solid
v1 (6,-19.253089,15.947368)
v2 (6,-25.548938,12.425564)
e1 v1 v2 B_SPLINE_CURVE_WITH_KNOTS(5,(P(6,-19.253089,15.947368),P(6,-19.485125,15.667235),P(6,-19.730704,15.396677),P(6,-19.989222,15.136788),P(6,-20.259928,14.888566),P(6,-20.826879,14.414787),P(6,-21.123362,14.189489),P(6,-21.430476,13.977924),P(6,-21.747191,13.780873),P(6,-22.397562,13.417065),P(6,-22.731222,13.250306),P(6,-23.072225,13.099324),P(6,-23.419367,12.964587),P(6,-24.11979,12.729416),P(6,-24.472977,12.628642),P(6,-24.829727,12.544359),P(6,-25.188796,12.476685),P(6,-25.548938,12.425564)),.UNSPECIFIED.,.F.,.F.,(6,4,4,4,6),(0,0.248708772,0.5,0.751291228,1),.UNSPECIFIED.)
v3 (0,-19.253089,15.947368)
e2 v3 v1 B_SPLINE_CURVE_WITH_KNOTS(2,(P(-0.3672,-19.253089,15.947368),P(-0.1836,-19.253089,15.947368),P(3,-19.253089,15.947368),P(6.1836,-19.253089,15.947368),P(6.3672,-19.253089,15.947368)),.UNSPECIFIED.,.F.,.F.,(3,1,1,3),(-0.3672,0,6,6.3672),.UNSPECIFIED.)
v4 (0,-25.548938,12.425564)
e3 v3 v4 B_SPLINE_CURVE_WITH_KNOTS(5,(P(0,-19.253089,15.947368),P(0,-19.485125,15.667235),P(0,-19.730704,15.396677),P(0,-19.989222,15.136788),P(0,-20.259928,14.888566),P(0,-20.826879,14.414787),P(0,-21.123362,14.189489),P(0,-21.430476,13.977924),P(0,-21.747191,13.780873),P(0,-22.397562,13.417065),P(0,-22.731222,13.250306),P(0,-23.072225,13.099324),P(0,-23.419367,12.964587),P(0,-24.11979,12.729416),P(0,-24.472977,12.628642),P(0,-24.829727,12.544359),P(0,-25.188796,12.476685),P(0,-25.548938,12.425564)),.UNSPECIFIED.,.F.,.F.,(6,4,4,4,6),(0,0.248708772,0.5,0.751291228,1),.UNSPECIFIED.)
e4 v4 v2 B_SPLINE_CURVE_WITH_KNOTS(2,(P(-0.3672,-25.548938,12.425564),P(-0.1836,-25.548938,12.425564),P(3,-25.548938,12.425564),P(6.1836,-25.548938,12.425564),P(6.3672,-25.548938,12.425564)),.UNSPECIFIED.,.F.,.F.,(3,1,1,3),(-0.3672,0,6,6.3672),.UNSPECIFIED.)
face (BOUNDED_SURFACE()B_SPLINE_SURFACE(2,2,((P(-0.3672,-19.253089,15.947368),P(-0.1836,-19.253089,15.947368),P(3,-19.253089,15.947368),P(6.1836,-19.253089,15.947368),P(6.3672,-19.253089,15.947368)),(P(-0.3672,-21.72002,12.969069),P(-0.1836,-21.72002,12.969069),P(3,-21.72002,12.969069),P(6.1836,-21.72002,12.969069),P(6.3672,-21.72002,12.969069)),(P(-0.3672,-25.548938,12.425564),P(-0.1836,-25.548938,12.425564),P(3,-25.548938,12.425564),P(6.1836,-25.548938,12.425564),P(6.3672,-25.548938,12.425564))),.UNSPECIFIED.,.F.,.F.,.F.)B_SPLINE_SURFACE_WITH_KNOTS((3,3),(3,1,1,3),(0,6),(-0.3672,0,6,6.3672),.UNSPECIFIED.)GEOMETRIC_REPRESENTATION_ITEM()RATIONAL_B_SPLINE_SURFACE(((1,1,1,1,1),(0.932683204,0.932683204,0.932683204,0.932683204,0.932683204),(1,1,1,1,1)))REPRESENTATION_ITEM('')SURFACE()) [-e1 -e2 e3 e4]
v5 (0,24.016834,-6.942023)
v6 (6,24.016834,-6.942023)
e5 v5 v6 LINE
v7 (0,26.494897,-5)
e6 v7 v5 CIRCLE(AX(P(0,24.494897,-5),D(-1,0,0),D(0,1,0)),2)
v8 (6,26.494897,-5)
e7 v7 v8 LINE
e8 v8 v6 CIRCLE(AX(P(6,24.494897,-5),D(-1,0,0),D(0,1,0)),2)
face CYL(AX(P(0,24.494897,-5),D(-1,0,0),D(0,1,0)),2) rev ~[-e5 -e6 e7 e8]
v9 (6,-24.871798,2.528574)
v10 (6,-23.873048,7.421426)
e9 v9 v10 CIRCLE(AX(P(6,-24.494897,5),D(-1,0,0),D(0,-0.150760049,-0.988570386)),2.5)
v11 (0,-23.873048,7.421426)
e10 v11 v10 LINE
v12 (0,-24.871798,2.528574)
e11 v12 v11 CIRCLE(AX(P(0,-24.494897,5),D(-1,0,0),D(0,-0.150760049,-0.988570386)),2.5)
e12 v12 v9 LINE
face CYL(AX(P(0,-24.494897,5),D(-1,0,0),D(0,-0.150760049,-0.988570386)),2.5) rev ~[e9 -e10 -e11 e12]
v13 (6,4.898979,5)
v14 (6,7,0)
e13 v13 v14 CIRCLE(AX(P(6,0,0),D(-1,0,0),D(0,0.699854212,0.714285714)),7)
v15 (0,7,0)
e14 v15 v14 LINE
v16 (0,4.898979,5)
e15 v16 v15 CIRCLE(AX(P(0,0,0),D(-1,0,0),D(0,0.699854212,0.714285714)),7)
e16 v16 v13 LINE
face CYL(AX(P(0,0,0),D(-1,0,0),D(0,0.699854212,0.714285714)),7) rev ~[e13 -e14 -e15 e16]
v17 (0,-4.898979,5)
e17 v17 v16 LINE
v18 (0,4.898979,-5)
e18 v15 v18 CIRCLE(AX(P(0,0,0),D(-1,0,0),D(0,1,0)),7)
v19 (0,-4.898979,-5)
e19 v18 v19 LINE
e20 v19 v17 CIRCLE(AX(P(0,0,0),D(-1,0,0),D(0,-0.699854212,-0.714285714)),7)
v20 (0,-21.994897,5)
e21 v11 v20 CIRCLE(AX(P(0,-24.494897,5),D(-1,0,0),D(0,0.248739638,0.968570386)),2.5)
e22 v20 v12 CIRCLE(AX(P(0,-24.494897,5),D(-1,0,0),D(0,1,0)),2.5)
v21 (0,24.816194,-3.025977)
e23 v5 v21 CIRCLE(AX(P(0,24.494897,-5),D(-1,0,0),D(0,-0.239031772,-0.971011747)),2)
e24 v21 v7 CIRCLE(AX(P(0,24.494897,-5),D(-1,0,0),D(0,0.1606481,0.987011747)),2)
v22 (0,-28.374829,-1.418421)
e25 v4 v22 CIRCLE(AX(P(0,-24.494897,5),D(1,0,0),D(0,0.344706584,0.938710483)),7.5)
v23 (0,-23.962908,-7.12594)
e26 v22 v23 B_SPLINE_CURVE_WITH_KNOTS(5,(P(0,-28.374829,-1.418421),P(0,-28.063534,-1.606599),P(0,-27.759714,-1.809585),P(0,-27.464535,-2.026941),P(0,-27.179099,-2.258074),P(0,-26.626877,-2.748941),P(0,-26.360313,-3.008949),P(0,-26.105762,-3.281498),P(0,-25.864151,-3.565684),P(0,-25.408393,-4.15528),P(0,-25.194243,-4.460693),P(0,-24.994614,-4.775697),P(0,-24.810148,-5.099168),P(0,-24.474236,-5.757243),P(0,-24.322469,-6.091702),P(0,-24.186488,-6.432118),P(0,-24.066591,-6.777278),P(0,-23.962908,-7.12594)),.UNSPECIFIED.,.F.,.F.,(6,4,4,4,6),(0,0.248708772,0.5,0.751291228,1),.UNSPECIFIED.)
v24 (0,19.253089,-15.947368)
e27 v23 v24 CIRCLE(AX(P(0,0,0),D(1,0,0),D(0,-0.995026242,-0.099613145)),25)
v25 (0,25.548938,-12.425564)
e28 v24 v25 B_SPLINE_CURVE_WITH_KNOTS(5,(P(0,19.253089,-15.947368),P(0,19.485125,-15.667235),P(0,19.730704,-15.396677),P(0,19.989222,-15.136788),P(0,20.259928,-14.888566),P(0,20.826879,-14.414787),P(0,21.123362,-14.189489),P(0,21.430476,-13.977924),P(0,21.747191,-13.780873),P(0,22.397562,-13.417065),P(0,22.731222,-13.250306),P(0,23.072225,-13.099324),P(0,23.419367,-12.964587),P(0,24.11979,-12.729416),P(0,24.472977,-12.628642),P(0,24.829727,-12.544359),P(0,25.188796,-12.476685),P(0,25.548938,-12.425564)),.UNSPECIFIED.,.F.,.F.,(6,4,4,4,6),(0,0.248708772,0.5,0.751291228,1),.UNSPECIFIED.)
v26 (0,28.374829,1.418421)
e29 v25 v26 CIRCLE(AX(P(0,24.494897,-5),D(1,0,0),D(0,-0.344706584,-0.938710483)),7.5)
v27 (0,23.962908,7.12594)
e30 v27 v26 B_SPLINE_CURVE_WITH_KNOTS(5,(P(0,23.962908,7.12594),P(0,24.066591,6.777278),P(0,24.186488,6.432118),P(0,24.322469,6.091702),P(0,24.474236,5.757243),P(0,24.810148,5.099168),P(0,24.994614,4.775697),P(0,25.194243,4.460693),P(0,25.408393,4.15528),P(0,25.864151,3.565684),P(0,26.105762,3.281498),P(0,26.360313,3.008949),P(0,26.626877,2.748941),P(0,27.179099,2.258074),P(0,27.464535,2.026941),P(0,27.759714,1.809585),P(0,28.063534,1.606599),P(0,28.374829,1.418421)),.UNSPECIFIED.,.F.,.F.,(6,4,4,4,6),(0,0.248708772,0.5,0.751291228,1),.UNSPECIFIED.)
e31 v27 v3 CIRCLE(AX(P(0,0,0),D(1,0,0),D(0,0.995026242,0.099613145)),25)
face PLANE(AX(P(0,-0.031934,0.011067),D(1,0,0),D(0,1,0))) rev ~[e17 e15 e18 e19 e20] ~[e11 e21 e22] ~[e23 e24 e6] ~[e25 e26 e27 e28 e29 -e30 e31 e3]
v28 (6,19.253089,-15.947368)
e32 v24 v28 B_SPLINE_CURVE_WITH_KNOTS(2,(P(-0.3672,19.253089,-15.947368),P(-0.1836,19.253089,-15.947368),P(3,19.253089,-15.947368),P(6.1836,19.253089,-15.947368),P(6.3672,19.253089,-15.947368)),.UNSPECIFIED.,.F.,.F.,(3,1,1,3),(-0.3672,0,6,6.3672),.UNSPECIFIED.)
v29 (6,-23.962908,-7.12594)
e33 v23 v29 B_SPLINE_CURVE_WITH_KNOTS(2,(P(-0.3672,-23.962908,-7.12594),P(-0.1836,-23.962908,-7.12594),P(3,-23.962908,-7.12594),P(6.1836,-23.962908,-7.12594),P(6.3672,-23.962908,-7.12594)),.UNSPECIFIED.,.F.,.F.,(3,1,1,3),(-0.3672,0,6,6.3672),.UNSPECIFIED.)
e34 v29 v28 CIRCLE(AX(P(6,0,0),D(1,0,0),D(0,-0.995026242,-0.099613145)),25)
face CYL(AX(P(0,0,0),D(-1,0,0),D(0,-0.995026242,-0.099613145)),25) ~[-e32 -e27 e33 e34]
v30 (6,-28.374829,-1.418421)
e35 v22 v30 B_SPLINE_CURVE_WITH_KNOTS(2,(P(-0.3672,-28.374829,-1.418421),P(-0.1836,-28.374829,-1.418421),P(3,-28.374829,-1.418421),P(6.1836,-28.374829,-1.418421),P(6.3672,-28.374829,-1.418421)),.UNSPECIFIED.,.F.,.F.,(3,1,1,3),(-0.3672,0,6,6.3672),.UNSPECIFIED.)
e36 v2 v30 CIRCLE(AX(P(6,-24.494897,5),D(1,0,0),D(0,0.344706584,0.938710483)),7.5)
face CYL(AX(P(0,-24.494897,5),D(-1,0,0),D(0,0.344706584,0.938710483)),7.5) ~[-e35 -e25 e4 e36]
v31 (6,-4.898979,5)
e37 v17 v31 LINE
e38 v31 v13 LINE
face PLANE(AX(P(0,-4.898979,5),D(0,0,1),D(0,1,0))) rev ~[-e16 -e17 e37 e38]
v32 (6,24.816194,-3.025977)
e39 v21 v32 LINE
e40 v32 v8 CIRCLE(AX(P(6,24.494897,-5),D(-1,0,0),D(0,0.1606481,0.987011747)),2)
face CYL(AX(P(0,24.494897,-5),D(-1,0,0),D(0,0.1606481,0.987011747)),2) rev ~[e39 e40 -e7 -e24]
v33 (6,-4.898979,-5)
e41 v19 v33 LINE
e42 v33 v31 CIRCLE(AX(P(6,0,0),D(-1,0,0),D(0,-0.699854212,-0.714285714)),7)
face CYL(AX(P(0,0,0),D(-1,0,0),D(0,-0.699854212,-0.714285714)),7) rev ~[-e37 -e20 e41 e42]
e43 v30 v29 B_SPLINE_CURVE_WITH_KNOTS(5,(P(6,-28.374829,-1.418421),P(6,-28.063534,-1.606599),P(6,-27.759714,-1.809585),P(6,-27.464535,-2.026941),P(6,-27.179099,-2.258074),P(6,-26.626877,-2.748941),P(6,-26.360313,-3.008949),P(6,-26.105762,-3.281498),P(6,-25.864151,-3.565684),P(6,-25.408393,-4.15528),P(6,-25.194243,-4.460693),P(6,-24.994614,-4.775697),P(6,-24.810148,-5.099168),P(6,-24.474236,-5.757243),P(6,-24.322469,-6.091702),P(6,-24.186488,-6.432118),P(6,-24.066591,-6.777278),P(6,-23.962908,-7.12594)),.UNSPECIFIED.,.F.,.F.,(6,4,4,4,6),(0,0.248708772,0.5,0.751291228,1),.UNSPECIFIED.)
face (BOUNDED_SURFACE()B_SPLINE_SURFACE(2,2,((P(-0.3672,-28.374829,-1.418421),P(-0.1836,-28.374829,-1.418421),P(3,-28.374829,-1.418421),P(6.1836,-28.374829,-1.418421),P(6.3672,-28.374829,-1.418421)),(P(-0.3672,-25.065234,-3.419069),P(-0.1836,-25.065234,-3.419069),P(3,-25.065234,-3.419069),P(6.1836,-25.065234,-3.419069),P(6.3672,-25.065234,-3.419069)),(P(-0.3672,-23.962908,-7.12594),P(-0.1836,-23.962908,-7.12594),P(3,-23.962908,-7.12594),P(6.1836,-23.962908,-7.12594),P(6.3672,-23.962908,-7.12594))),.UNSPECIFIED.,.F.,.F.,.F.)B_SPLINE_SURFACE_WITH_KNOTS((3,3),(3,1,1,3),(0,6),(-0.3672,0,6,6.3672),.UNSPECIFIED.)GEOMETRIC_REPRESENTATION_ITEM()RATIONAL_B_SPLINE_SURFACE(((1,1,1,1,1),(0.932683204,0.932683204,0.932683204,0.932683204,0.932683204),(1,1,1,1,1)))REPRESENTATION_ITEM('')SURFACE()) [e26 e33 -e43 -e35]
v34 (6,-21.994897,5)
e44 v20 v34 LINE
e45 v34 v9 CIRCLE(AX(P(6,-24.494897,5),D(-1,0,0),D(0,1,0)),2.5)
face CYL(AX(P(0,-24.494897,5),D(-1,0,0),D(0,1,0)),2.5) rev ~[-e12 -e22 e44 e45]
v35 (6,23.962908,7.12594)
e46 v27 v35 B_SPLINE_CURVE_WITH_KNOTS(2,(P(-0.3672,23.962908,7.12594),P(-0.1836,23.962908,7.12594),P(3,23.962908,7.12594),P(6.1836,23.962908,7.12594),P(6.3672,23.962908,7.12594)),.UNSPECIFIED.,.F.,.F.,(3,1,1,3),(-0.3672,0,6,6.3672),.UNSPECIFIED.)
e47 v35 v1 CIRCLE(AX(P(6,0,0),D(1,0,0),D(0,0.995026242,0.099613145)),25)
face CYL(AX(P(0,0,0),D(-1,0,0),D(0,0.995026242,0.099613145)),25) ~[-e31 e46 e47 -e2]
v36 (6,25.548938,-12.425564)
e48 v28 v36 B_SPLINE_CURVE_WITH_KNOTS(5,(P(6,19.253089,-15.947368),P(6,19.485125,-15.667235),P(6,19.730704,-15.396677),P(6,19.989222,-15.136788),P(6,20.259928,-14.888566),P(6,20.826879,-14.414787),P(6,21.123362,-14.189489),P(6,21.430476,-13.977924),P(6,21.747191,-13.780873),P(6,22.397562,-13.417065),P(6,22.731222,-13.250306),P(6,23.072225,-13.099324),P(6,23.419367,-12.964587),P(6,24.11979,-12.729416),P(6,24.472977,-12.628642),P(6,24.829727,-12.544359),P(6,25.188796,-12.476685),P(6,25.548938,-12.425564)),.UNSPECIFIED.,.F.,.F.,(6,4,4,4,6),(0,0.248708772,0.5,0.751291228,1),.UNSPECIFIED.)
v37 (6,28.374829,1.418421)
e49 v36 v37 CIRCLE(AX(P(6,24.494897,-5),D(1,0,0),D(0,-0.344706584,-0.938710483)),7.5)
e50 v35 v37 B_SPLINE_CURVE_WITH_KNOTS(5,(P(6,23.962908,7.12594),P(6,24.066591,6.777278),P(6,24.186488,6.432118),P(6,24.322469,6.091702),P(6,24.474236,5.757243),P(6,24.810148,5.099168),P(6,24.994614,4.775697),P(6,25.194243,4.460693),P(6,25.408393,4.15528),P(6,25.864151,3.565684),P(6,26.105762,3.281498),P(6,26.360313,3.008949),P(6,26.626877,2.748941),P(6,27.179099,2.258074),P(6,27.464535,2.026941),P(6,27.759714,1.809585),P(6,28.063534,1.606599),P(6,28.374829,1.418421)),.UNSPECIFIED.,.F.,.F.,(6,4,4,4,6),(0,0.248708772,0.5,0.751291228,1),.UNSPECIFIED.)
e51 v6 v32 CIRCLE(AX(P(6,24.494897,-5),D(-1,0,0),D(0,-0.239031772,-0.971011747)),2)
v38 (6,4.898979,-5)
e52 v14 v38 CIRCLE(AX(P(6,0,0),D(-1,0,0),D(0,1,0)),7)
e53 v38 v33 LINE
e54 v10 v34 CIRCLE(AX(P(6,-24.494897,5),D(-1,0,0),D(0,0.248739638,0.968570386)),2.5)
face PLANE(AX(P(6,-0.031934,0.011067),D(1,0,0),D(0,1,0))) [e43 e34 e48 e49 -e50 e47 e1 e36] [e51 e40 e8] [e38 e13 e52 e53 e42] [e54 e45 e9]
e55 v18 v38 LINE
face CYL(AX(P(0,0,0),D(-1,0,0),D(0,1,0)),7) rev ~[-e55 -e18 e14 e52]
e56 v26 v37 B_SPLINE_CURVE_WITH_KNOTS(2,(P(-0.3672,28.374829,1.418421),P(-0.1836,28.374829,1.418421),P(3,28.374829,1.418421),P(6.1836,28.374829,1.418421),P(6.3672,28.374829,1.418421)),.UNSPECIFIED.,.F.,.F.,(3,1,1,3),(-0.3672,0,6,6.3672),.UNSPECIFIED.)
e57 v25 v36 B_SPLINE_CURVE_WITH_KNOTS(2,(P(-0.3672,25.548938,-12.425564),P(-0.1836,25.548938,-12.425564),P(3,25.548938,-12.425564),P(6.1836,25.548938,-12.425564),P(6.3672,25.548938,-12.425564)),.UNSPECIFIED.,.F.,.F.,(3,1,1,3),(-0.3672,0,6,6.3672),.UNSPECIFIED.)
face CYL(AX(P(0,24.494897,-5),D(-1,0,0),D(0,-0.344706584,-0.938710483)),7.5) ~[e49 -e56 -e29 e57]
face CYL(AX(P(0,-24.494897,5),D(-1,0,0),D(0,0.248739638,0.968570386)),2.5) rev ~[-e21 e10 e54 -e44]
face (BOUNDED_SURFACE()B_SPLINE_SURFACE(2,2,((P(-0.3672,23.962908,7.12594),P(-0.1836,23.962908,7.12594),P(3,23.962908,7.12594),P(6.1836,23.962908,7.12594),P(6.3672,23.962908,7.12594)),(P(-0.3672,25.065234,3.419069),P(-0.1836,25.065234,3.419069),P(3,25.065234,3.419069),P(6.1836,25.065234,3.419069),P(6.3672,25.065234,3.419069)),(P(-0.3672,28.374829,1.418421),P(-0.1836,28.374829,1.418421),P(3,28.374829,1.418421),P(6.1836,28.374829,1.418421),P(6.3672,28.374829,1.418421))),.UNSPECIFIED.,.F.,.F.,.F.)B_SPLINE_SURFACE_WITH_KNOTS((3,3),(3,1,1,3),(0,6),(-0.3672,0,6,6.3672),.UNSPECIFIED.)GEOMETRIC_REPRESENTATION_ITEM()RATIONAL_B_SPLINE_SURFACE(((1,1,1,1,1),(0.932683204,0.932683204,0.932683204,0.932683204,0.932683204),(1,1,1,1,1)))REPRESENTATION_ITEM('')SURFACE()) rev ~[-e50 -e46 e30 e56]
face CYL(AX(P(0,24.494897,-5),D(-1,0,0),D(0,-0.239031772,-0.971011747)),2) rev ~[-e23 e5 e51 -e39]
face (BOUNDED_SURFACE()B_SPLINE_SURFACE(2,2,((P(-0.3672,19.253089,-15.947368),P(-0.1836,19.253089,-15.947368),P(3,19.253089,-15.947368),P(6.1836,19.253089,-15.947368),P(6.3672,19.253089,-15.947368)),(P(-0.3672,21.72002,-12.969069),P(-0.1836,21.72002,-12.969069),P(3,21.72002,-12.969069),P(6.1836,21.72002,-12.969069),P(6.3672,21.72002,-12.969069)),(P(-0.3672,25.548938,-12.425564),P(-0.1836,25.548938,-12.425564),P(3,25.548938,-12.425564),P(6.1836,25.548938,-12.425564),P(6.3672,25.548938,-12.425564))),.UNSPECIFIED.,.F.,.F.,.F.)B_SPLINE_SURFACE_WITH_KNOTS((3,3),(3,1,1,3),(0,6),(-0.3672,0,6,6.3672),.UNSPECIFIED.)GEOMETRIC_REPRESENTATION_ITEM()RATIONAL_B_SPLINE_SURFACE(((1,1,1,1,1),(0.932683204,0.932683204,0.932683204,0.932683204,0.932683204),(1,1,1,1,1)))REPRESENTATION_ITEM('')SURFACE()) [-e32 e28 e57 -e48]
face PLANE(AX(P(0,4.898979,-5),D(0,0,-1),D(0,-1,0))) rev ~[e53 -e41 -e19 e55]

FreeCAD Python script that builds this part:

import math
import FreeCAD as App
import Part
import Sketcher

V = App.Vector


def edges_at(feature, points):
    """Names of the edges that pass closest to the given points."""
    edges = feature.Shape.Edges
    near = lambda p: min(range(len(edges)), key=lambda i: edges[i].distToShape(Part.Vertex(*p))[0])
    return sorted({f"Edge{near(p) + 1}" for p in points})

doc = App.newDocument("Part")
params = doc.addObject("Spreadsheet::Sheet", "Params")
for row, (alias, value) in enumerate([
    ("sketch1_radius", "25 mm"),
    ("sketch1_radius2", "7 mm"),
    ("sketch1_radius3", "2 mm"),
    ("sketch1_radius4", "7.5 mm"),
    ("sketch1_radius5", "2.5 mm"),
    ("pad1_length", "6 mm"),
    ("fillet_radius", "10 mm"),
], start=1):
    params.set(f"A{row}", alias)
    params.set(f"B{row}", "=" + value)
    params.setAlias(f"B{row}", alias)

body = doc.addObject("PartDesign::Body", "Body")

# Sketch on YZ plane
sketch1 = body.newObject("Sketcher::SketchObject", "Sketch")
sketch1.AttachmentSupport = (doc.getObject("YZ_Plane"), [""])
sketch1.MapMode = "FlatFace"
sketch1.addGeometry([
    Part.ArcOfCircle(Part.Circle(V(0, 0, 0), V(0, 0, 1), 25), math.radians(6), math.radians(151)),  # 0
    Part.ArcOfCircle(Part.Circle(V(-24.5, 5, 0), V(0, 0, 1), 7.5), math.radians(70), math.radians(267)),  # 1
    Part.ArcOfCircle(Part.Circle(V(0, 0, 0), V(0, 0, 1), 25), math.radians(-174), math.radians(-29)),  # 2
    Part.ArcOfCircle(Part.Circle(V(24.5, -5, 0), V(0, 0, 1), 7.5), math.radians(-110), math.radians(87)),  # 3
    Part.ArcOfCircle(Part.Circle(V(-24.5, 5, 0), V(0, 0, 1), 2.5), math.radians(0), math.radians(76)),  # 4
    Part.ArcOfCircle(Part.Circle(V(-24.5, 5, 0), V(0, 0, 1), 2.5), math.radians(-99), math.radians(0)),  # 5
    Part.ArcOfCircle(Part.Circle(V(-24.5, 5, 0), V(0, 0, 1), 2.5), math.radians(76), math.radians(261)),  # 6
    Part.ArcOfCircle(Part.Circle(V(0, 0, 0), V(0, 0, 1), 7), math.radians(0), math.radians(46)),  # 7
    Part.ArcOfCircle(Part.Circle(V(0, 0, 0), V(0, 0, 1), 7), math.radians(-46), math.radians(0)),  # 8
    Part.LineSegment(V(4.9, -5, 0), V(-4.9, -5, 0)),  # 9
    Part.ArcOfCircle(Part.Circle(V(0, 0, 0), V(0, 0, 1), 7), math.radians(134), math.radians(226)),  # 10
    Part.LineSegment(V(-4.9, 5, 0), V(4.9, 5, 0)),  # 11
    Part.ArcOfCircle(Part.Circle(V(24.5, -5, 0), V(0, 0, 1), 2), math.radians(81), math.radians(256)),  # 12
    Part.ArcOfCircle(Part.Circle(V(24.5, -5, 0), V(0, 0, 1), 2), math.radians(0), math.radians(81)),  # 13
    Part.ArcOfCircle(Part.Circle(V(24.5, -5, 0), V(0, 0, 1), 2), math.radians(-104), math.radians(0)),  # 14
], False)
sketch1.addConstraint([
    Sketcher.Constraint("Coincident", 0, 2, 1, 1),
    Sketcher.Constraint("Coincident", 1, 2, 2, 1),
    Sketcher.Constraint("Coincident", 2, 2, 3, 1),
    Sketcher.Constraint("Coincident", 3, 2, 0, 1),
    Sketcher.Constraint("Tangent", 4, 1, 5, 2),
    Sketcher.Constraint("Tangent", 5, 1, 6, 2),
    Sketcher.Constraint("Tangent", 6, 1, 4, 2),
    Sketcher.Constraint("Tangent", 7, 1, 8, 2),
    Sketcher.Constraint("Coincident", 8, 1, 9, 1),
    Sketcher.Constraint("Coincident", 9, 2, 10, 2),
    Sketcher.Constraint("Coincident", 10, 1, 11, 1),
    Sketcher.Constraint("Coincident", 11, 2, 7, 2),
    Sketcher.Constraint("Tangent", 12, 1, 13, 2),
    Sketcher.Constraint("Tangent", 13, 1, 14, 2),
    Sketcher.Constraint("Tangent", 14, 1, 12, 2),
    Sketcher.Constraint("Horizontal", 9),
    Sketcher.Constraint("Horizontal", 11),
    Sketcher.Constraint("Coincident", 0, 3, -1, 1),
    Sketcher.Constraint("Coincident", 2, 3, -1, 1),
    Sketcher.Constraint("Coincident", 7, 3, -1, 1),
    Sketcher.Constraint("Coincident", 10, 3, -1, 1),
    Sketcher.Constraint("Coincident", 4, 3, 1, 3),
    Sketcher.Constraint("Coincident", 12, 3, 3, 3),
    Sketcher.Constraint("Equal", 0, 2),
    Sketcher.Constraint("Equal", 1, 3),
    Sketcher.Constraint("Equal", 7, 8),
    Sketcher.Constraint("Equal", 8, 10),
    Sketcher.Constraint("Symmetric", 1, 3, 3, 3, -1, 1),
    Sketcher.Constraint("PointOnObject", 7, 1, -1),
    Sketcher.Constraint("Horizontal", 6, 3, 4, 1),
    Sketcher.Constraint("Horizontal", 14, 3, 8, 1),
    Sketcher.Constraint("Horizontal", 4, 1, 10, 1),
    Sketcher.Constraint("Horizontal", 9, 2, 13, 1),
    Sketcher.Constraint("Radius", 0, 25.0),
    Sketcher.Constraint("Radius", 7, 7.0),
    Sketcher.Constraint("Radius", 12, 2.0),
    Sketcher.Constraint("Radius", 1, 7.5),
    Sketcher.Constraint("Radius", 4, 2.5),
    Sketcher.Constraint("DistanceY", -1, 1, 1, 3, 5.0),
    Sketcher.Constraint("DistanceX", 0, 2, -1, 1, 21.909598),
    Sketcher.Constraint("DistanceX", 5, 1, 1, 3, 0.3769),
    Sketcher.Constraint("DistanceX", 6, 1, -1, 1, 23.873048),
    Sketcher.Constraint("DistanceX", -1, 1, 12, 1, 24.816194),
    Sketcher.Constraint("DistanceX", -1, 1, 14, 1, 24.016834),
])
sketch1.setExpression("Constraints[33]", "Params.sketch1_radius")
sketch1.setExpression("Constraints[34]", "Params.sketch1_radius2")
sketch1.setExpression("Constraints[35]", "Params.sketch1_radius3")
sketch1.setExpression("Constraints[36]", "Params.sketch1_radius4")
sketch1.setExpression("Constraints[37]", "Params.sketch1_radius5")
pad1 = body.newObject("PartDesign::Pad", "Pad")
pad1.Profile = sketch1
pad1.setExpression("Length", "Params.pad1_length")
doc.recompute()

fillet = body.newObject("PartDesign::Fillet", "Fillet")
fillet.Base = (pad1, edges_at(pad1, [
    (3, 24.876, 2.49),
    (3, 21.91, -12.04),
    (3, -21.91, 12.04),
    (3, -24.876, -2.49),
]))
fillet.setExpression("Radius", "Params.fillet_radius")

doc.recompute()
